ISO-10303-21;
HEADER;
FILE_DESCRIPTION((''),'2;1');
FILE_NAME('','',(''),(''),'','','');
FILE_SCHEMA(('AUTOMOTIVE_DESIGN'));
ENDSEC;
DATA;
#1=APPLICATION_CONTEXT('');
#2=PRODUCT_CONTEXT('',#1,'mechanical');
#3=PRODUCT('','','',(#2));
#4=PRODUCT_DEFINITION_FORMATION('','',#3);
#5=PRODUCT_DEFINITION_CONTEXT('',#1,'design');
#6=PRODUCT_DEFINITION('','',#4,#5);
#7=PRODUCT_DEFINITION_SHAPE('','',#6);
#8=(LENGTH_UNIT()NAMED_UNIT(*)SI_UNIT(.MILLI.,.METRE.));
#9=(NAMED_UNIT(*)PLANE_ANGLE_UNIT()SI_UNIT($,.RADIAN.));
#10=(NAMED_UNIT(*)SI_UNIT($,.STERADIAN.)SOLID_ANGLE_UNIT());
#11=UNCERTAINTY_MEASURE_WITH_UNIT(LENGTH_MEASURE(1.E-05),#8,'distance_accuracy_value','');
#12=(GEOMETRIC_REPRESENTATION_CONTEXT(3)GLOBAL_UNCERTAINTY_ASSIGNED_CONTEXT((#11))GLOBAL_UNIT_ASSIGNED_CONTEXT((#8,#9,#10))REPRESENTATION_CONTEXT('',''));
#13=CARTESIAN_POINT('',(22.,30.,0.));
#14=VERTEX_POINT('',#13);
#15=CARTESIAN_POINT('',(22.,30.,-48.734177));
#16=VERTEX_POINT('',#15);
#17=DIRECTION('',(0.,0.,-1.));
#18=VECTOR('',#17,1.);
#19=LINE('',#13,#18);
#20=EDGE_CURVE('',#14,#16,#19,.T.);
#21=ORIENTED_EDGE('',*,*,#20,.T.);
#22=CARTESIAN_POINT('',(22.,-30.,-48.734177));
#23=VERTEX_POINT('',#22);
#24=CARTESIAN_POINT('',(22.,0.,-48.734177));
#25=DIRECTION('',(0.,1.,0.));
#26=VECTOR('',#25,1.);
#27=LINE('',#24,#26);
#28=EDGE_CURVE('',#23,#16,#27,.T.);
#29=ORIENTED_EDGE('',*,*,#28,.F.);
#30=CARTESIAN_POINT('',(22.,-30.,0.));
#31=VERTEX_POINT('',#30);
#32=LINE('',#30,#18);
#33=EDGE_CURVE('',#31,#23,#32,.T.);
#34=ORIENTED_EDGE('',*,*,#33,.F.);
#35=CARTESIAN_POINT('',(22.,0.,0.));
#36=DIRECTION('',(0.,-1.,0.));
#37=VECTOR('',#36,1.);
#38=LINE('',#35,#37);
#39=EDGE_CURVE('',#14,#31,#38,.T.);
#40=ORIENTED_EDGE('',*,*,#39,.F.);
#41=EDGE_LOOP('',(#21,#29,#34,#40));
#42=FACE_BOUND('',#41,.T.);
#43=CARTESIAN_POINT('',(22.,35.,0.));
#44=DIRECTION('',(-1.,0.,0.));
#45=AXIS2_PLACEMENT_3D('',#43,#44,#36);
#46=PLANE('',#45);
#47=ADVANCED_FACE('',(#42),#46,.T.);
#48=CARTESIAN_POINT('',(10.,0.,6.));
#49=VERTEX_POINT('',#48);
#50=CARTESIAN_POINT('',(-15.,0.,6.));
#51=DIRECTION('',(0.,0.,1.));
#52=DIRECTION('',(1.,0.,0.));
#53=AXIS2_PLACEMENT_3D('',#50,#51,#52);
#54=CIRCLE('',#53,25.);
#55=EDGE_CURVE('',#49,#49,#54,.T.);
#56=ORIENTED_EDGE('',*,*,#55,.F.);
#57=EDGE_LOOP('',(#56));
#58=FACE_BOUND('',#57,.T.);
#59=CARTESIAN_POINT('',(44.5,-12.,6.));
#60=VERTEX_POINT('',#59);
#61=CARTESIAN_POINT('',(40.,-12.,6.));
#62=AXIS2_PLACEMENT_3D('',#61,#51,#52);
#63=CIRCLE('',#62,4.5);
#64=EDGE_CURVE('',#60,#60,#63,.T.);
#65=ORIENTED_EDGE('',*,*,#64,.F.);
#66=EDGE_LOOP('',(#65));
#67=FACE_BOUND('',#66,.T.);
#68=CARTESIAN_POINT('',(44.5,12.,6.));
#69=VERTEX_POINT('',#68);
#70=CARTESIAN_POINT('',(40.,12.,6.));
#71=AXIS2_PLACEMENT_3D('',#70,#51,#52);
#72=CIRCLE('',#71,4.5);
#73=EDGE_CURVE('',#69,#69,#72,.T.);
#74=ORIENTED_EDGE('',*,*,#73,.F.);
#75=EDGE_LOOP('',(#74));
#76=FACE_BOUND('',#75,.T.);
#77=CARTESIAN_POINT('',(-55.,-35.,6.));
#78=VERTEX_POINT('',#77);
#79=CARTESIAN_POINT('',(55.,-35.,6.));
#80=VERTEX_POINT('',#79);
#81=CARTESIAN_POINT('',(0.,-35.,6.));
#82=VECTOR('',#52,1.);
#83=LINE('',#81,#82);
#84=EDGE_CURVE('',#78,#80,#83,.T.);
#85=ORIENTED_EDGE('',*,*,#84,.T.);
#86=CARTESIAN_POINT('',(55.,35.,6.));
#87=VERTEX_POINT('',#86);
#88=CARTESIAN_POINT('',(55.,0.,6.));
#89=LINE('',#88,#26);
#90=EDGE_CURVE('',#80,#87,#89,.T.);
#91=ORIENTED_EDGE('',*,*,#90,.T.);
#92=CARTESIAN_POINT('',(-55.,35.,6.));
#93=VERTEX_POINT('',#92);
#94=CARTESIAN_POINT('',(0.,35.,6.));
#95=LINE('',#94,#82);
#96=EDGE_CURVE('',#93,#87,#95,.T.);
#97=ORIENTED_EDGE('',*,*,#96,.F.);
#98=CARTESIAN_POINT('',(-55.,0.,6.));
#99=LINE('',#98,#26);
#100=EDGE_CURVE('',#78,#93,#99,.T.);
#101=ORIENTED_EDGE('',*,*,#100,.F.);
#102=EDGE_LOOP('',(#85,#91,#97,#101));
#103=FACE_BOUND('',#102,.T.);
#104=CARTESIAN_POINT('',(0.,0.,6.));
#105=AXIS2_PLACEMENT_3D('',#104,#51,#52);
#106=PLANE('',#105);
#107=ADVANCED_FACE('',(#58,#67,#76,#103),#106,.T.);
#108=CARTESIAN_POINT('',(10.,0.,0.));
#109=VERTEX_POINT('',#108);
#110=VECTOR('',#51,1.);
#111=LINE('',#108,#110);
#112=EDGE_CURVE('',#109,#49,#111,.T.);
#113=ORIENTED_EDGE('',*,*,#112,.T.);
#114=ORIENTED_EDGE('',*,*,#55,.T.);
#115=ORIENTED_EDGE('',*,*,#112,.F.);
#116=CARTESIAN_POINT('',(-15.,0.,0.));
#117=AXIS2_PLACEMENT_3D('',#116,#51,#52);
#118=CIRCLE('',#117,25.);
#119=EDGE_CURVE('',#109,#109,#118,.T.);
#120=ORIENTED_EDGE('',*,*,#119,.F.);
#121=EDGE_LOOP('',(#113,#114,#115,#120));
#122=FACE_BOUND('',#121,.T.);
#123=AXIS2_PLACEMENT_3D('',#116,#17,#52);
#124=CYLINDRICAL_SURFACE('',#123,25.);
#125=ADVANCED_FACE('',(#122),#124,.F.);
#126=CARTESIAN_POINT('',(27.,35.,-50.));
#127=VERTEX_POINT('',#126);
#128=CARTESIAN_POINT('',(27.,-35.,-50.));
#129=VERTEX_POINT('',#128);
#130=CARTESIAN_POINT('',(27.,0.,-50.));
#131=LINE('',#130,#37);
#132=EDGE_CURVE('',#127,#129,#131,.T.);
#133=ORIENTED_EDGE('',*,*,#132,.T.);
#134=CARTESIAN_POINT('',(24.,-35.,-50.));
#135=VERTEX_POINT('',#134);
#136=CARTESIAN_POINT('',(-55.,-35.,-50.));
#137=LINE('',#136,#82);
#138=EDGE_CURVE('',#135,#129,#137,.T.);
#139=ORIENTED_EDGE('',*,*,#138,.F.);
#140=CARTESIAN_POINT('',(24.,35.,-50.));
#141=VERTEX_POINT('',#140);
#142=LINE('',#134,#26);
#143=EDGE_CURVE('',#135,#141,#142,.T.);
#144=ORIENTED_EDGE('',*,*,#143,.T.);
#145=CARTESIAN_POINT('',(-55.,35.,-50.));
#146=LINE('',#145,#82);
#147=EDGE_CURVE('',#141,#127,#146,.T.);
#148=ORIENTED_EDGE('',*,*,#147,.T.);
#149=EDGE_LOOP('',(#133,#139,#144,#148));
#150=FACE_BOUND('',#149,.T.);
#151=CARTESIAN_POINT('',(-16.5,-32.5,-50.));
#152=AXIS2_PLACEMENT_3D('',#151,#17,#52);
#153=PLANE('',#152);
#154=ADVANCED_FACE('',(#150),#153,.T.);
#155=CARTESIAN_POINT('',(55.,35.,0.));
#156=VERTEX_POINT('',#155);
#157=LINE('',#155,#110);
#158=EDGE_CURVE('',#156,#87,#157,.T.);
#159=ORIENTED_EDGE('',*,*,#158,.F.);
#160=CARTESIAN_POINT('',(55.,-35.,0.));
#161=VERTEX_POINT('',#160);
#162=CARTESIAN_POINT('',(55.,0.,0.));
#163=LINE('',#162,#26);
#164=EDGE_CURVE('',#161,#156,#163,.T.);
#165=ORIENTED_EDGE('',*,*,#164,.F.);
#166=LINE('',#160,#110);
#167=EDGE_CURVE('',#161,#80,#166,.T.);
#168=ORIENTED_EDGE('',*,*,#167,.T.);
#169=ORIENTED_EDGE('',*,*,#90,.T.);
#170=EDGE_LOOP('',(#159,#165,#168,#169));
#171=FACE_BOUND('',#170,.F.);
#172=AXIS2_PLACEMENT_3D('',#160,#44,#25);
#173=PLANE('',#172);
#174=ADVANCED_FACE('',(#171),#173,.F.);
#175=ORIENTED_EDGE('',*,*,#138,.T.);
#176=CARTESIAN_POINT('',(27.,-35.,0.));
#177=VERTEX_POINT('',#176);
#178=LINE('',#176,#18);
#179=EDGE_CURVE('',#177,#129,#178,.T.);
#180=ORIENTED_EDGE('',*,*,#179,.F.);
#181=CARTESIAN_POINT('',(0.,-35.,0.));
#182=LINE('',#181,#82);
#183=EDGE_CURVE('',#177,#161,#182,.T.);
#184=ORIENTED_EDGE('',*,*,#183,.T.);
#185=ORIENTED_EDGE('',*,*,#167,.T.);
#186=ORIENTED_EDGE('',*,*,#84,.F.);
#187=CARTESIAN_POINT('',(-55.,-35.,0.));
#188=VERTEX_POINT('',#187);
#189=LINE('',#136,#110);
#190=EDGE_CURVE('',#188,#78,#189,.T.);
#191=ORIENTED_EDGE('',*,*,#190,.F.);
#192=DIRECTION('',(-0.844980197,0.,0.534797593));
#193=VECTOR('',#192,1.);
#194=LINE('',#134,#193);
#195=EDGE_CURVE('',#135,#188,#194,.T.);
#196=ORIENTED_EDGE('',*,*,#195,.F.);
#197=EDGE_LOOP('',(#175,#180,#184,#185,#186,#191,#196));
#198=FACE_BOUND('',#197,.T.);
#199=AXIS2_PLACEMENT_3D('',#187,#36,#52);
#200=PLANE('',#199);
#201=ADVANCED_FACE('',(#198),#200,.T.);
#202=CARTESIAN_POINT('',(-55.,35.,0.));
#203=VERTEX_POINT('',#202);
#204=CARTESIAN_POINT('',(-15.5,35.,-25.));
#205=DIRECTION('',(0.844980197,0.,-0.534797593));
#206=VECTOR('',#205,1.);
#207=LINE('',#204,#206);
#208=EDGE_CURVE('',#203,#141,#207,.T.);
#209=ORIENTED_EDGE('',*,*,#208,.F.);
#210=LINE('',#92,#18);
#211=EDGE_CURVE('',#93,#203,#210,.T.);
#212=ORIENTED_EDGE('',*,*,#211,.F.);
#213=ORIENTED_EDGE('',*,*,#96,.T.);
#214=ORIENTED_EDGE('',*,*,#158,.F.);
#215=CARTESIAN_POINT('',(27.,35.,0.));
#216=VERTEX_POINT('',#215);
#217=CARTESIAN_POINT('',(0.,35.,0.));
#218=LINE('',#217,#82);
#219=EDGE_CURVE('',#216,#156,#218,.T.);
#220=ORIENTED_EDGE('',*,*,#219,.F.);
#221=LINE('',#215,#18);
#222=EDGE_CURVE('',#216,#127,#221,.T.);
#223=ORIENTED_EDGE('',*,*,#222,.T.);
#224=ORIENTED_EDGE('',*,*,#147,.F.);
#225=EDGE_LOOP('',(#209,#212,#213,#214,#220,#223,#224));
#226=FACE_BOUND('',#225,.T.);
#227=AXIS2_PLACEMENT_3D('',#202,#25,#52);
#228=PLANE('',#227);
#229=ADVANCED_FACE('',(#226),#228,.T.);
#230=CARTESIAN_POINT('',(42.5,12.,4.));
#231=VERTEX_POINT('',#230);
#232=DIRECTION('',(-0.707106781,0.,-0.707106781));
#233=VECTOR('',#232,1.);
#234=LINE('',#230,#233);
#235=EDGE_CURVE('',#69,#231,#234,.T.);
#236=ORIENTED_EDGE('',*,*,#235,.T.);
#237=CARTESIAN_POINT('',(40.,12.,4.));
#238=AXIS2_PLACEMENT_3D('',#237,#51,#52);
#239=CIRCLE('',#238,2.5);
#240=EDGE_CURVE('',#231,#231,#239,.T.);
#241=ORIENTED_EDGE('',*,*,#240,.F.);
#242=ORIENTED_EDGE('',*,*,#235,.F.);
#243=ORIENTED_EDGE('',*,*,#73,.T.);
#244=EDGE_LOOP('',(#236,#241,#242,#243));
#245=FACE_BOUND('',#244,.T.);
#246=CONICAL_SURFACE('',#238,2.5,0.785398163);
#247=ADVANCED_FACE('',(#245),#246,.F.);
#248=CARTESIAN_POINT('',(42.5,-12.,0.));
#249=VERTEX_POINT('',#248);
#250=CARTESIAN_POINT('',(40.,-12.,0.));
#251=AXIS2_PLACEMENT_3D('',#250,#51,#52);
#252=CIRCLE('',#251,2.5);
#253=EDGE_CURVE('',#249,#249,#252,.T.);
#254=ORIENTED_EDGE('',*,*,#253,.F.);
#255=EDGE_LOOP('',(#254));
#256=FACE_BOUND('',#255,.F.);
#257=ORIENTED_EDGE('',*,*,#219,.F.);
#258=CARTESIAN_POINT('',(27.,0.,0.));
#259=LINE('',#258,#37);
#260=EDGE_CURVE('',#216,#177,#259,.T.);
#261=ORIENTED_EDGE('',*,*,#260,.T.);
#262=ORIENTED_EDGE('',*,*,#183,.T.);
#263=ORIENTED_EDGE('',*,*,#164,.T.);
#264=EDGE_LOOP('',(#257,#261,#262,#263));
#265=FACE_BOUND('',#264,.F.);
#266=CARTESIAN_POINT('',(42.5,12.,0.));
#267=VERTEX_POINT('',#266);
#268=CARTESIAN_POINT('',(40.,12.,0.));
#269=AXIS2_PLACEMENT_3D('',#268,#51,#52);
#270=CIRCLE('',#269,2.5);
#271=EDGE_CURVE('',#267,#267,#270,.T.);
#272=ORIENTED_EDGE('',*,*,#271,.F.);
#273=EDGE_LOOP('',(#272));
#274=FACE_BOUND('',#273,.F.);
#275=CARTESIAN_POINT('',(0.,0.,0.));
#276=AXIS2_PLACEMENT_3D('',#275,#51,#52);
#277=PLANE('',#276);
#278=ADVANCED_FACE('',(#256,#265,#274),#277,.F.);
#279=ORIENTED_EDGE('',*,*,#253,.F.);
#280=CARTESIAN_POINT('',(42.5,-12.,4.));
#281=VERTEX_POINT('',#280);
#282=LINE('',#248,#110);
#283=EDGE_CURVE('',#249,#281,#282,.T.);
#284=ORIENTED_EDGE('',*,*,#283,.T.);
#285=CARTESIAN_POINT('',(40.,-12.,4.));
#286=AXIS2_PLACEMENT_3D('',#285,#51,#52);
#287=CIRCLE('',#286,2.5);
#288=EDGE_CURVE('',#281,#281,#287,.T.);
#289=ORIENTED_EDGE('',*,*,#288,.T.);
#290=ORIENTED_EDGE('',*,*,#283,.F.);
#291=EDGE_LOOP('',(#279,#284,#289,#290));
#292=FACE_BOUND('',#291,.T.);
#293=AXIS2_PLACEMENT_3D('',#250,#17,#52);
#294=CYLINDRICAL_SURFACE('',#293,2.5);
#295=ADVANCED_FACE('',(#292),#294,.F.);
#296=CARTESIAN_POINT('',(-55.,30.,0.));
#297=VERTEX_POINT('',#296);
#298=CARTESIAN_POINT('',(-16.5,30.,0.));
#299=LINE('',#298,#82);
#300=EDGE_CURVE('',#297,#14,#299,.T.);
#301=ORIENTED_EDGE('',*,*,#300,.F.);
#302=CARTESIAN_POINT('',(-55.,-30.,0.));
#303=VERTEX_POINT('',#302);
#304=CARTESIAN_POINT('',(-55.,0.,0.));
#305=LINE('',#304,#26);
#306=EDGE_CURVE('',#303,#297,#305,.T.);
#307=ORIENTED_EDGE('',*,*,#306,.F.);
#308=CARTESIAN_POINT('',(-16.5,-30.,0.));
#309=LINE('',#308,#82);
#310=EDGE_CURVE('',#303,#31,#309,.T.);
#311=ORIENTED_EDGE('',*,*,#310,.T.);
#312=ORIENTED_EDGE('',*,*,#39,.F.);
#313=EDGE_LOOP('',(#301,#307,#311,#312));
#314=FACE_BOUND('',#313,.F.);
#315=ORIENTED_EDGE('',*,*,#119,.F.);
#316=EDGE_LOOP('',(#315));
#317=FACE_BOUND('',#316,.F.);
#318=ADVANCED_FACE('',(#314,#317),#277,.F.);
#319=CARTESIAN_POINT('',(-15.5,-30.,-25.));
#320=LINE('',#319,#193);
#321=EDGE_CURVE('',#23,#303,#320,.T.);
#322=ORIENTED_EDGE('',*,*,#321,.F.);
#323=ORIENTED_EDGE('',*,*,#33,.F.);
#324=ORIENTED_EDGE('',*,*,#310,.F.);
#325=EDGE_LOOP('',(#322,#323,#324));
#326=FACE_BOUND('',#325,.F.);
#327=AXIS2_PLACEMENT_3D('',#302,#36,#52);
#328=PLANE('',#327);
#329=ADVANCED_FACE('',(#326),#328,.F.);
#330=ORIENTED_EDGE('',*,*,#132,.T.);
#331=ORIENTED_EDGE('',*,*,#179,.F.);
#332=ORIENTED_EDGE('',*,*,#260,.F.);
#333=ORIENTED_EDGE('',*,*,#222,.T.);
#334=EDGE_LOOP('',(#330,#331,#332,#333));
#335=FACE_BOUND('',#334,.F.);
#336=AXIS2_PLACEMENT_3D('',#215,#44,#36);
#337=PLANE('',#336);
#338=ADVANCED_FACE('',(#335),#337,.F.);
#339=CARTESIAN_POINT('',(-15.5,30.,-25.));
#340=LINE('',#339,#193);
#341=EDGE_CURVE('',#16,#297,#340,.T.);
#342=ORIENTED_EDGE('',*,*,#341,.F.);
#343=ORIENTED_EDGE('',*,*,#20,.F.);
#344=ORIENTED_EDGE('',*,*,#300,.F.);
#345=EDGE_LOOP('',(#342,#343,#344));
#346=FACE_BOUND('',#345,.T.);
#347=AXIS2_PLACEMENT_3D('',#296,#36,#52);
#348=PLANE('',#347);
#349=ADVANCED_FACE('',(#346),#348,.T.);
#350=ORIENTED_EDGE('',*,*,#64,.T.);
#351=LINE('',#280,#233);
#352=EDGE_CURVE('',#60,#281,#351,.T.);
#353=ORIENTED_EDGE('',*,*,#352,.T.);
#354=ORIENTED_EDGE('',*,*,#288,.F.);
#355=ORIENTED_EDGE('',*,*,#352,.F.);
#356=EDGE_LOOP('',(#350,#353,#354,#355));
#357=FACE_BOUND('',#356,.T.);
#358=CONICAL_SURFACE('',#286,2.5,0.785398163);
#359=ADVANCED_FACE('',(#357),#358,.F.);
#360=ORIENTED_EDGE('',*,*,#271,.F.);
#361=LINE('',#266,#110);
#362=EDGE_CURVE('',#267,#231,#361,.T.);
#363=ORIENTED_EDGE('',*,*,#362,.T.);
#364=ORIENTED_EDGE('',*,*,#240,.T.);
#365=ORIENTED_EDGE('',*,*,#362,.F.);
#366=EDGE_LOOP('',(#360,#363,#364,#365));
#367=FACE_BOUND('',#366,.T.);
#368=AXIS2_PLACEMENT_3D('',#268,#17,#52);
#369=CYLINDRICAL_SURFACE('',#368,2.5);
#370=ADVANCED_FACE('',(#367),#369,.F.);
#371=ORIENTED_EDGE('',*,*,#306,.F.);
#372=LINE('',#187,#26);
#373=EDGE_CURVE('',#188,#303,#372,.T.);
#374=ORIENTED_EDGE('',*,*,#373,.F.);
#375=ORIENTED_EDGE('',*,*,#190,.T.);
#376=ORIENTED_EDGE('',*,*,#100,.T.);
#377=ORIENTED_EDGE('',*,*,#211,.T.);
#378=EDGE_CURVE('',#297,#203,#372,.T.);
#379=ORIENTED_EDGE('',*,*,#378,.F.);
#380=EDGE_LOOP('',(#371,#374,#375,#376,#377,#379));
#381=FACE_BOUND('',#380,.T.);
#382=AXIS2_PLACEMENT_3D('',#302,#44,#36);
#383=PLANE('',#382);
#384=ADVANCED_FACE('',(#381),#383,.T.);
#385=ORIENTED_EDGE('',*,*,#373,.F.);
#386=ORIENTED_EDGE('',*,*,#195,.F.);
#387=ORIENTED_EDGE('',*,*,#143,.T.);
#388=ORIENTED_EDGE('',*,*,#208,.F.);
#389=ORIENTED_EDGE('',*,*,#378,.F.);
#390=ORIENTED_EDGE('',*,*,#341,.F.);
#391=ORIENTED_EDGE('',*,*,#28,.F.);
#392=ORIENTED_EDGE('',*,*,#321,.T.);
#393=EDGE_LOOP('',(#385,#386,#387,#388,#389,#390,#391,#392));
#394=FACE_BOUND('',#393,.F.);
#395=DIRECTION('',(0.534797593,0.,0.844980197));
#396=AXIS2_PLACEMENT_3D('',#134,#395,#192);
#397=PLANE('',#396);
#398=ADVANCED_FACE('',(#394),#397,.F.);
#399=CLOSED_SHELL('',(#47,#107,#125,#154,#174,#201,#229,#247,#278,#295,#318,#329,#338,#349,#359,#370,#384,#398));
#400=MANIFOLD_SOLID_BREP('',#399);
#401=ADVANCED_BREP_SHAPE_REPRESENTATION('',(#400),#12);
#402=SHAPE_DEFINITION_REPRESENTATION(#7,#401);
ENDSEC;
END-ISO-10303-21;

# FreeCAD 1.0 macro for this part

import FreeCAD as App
import Part
import Sketcher
from FreeCAD import Vector
Q = App.Units.Quantity


def edges_at(feature, points):
    """Names of the edges that pass closest to the given points."""
    edges = feature.Shape.Edges
    near = lambda p: min(range(len(edges)), key=lambda i: edges[i].distToShape(Part.Vertex(*p))[0])
    return sorted({f"Edge{near(p) + 1}" for p in points})

doc = App.newDocument("Part")
params = doc.addObject("Spreadsheet::Sheet", "Params")
for row, (alias, value) in enumerate([
    ("sketch1_diameter", "5 mm"),
    ("sketch1_diameter2", "50 mm"),
    ("sketch1_width", "110 mm"),
    ("sketch1_height", "70 mm"),
    ("pad1_length", "6 mm"),
    ("sketch2_width", "5 mm"),
    ("sketch2_height", "70 mm"),
    ("pad2_length", "50 mm"),
    ("sketch3_width", "77 mm"),
    ("sketch3_height", "5 mm"),
    ("pad3_length", "50 mm"),
    ("sketch4_width", "79 mm"),
    ("sketch4_height", "50 mm"),
    ("pocket1_length", "84.5 mm"),
    ("chamfer_size", "2 mm"),
    ("chamfer2_size", "2 mm"),
], start=1):
    params.set(f"A{row}", alias)
    params.set(f"B{row}", "=" + value)
    params.setAlias(f"B{row}", alias)

body = doc.addObject("PartDesign::Body", "Body")

# Sketch on XY plane
sketch1 = body.newObject("Sketcher::SketchObject", "Sketch")
sketch1.AttachmentSupport = (doc.getObject("XY_Plane"), [""])
sketch1.MapMode = "FlatFace"
sketch1.addGeometry([
    Part.LineSegment(Vector(-55, 35, 0), Vector(-55, -35, 0)),  # 0
    Part.LineSegment(Vector(-55, -35, 0), Vector(55, -35, 0)),  # 1
    Part.LineSegment(Vector(55, -35, 0), Vector(55, 35, 0)),  # 2
    Part.LineSegment(Vector(55, 35, 0), Vector(-55, 35, 0)),  # 3
    Part.Circle(Vector(40, -12, 0), Vector(0, 0, 1), 2.5),  # 4
    Part.Circle(Vector(-15, 0, 0), Vector(0, 0, 1), 25),  # 5
    Part.Circle(Vector(40, 12, 0), Vector(0, 0, 1), 2.5),  # 6
], False)
sketch1.addConstraint([
    Sketcher.Constraint("Coincident", 0, 2, 1, 1),
    Sketcher.Constraint("Coincident", 1, 2, 2, 1),
    Sketcher.Constraint("Coincident", 2, 2, 3, 1),
    Sketcher.Constraint("Coincident", 3, 2, 0, 1),
    Sketcher.Constraint("Vertical", 0),
    Sketcher.Constraint("Horizontal", 1),
    Sketcher.Constraint("Vertical", 2),
    Sketcher.Constraint("Horizontal", 3),
    Sketcher.Constraint("Equal", 4, 6),
    Sketcher.Constraint("Symmetric", 0, 2, 2, 2, -1, 1),
    Sketcher.Constraint("Symmetric", 4, 3, 6, 3, -1),
    Sketcher.Constraint("PointOnObject", 5, 3, -1),
    Sketcher.Constraint("Diameter", 4, Q("5 mm")),
    Sketcher.Constraint("Diameter", 5, Q("50 mm")),
    Sketcher.Constraint("DistanceX", 1, 1, 1, 2, Q("110 mm")),
    Sketcher.Constraint("DistanceY", 0, 2, 0, 1, Q("70 mm")),
    Sketcher.Constraint("DistanceX", -1, 1, 4, 3, Q("40 mm")),
    Sketcher.Constraint("DistanceY", 4, 3, -1, 1, Q("12 mm")),
    Sketcher.Constraint("DistanceX", 5, 3, -1, 1, Q("15 mm")),
])
sketch1.setExpression("Constraints[12]", "Params.sketch1_diameter")
sketch1.setExpression("Constraints[13]", "Params.sketch1_diameter2")
sketch1.setExpression("Constraints[14]", "Params.sketch1_width")
sketch1.setExpression("Constraints[15]", "Params.sketch1_height")
pad1 = body.newObject("PartDesign::Pad", "Pad")
pad1.Profile = sketch1
pad1.setExpression("Length", "Params.pad1_length")

# Sketch on XY plane
sketch2 = body.newObject("Sketcher::SketchObject", "Sketch001")
sketch2.AttachmentSupport = (doc.getObject("XY_Plane"), [""])
sketch2.MapMode = "FlatFace"
sketch2.addGeometry([
    Part.LineSegment(Vector(22, -35, 0), Vector(22, 35, 0)),
    Part.LineSegment(Vector(22, 35, 0), Vector(27, 35, 0)),
    Part.LineSegment(Vector(27, 35, 0), Vector(27, -35, 0)),
    Part.LineSegment(Vector(27, -35, 0), Vector(22, -35, 0)),
], False)
sketch2.addConstraint([
    Sketcher.Constraint("Coincident", 0, 2, 1, 1),
    Sketcher.Constraint("Coincident", 1, 2, 2, 1),
    Sketcher.Constraint("Coincident", 2, 2, 3, 1),
    Sketcher.Constraint("Coincident", 3, 2, 0, 1),
    Sketcher.Constraint("Vertical", 0),
    Sketcher.Constraint("Horizontal", 1),
    Sketcher.Constraint("Vertical", 2),
    Sketcher.Constraint("Horizontal", 3),
    Sketcher.Constraint("DistanceX", 1, 1, 1, 2, Q("5 mm")),
    Sketcher.Constraint("DistanceY", 0, 1, 0, 2, Q("70 mm")),
    Sketcher.Constraint("DistanceX", -1, 1, 0, 2, Q("22 mm")),
    Sketcher.Constraint("DistanceY", -1, 1, 0, 2, Q("35 mm")),
])
sketch2.setExpression("Constraints[8]", "Params.sketch2_width")
sketch2.setExpression("Constraints[9]", "Params.sketch2_height")
pad2 = body.newObject("PartDesign::Pad", "Pad001")
pad2.Profile = sketch2
pad2.setExpression("Length", "Params.pad2_length")
pad2.Reversed = True

# Sketch on XY plane
sketch3 = body.newObject("Sketcher::SketchObject", "Sketch002")
sketch3.AttachmentSupport = (doc.getObject("XY_Plane"), [""])
sketch3.MapMode = "FlatFace"
sketch3.addGeometry([
    Part.LineSegment(Vector(-55, -35, 0), Vector(-55, -30, 0)),  # 0
    Part.LineSegment(Vector(-55, -30, 0), Vector(22, -30, 0)),  # 1
    Part.LineSegment(Vector(22, -30, 0), Vector(22, -35, 0)),  # 2
    Part.LineSegment(Vector(22, -35, 0), Vector(-55, -35, 0)),  # 3
    Part.LineSegment(Vector(-55, 30, 0), Vector(-55, 35, 0)),  # 4
    Part.LineSegment(Vector(-55, 35, 0), Vector(22, 35, 0)),  # 5
    Part.LineSegment(Vector(22, 35, 0), Vector(22, 30, 0)),  # 6
    Part.LineSegment(Vector(22, 30, 0), Vector(-55, 30, 0)),  # 7
], False)
sketch3.addConstraint([
    Sketcher.Constraint("Coincident", 0, 2, 1, 1),
    Sketcher.Constraint("Coincident", 1, 2, 2, 1),
    Sketcher.Constraint("Coincident", 2, 2, 3, 1),
    Sketcher.Constraint("Coincident", 3, 2, 0, 1),
    Sketcher.Constraint("Coincident", 4, 2, 5, 1),
    Sketcher.Constraint("Coincident", 5, 2, 6, 1),
    Sketcher.Constraint("Coincident", 6, 2, 7, 1),
    Sketcher.Constraint("Coincident", 7, 2, 4, 1),
    Sketcher.Constraint("Vertical", 0),
    Sketcher.Constraint("Horizontal", 1),
    Sketcher.Constraint("Vertical", 2),
    Sketcher.Constraint("Horizontal", 3),
    Sketcher.Constraint("Vertical", 4),
    Sketcher.Constraint("Horizontal", 5),
    Sketcher.Constraint("Vertical", 6),
    Sketcher.Constraint("Horizontal", 7),
    Sketcher.Constraint("Symmetric", 3, 2, 4, 2, -1),
    Sketcher.Constraint("Symmetric", 1, 2, 6, 2, -1),
    Sketcher.Constraint("DistanceX", 1, 1, 1, 2, Q("77 mm")),
    Sketcher.Constraint("DistanceY", 0, 1, 0, 2, Q("5 mm")),
    Sketcher.Constraint("DistanceX", 0, 2, -1, 1, Q("55 mm")),
    Sketcher.Constraint("DistanceY", 0, 2, -1, 1, Q("30 mm")),
])
sketch3.setExpression("Constraints[18]", "Params.sketch3_width")
sketch3.setExpression("Constraints[19]", "Params.sketch3_height")
pad3 = body.newObject("PartDesign::Pad", "Pad002")
pad3.Profile = sketch3
pad3.setExpression("Length", "Params.pad3_length")
pad3.Reversed = True

# Sketch on XZ plane
sketch4 = body.newObject("Sketcher::SketchObject", "Sketch003")
sketch4.AttachmentSupport = (doc.getObject("XZ_Plane"), [""])
sketch4.MapMode = "FlatFace"
sketch4.AttachmentOffset = App.Placement(Vector(0, 0, 35), App.Rotation())
sketch4.addGeometry([
    Part.LineSegment(Vector(24, -50, 0), Vector(-55, 0, 0)),
    Part.LineSegment(Vector(-55, 0, 0), Vector(-55, -50, 0)),
    Part.LineSegment(Vector(-55, -50, 0), Vector(24, -50, 0)),
], False)
sketch4.addConstraint([
    Sketcher.Constraint("Coincident", 0, 2, 1, 1),
    Sketcher.Constraint("Coincident", 1, 2, 2, 1),
    Sketcher.Constraint("Coincident", 2, 2, 0, 1),
    Sketcher.Constraint("Vertical", 1),
    Sketcher.Constraint("Horizontal", 2),
    Sketcher.Constraint("PointOnObject", 0, 2, -1),
    Sketcher.Constraint("DistanceX", 2, 1, 2, 2, Q("79 mm")),
    Sketcher.Constraint("DistanceY", 1, 2, 1, 1, Q("50 mm")),
    Sketcher.Constraint("DistanceX", 0, 2, -1, 1, Q("55 mm")),
])
sketch4.setExpression("Constraints[6]", "Params.sketch4_width")
sketch4.setExpression("Constraints[7]", "Params.sketch4_height")
pocket1 = body.newObject("PartDesign::Pocket", "Pocket")
pocket1.Profile = sketch4
pocket1.setExpression("Length", "Params.pocket1_length")
doc.recompute()

chamfer = body.newObject("PartDesign::Chamfer", "Chamfer")
chamfer.Base = (pocket1, edges_at(pocket1, [(37.5, 12, 6)]))
chamfer.setExpression("Size", "Params.chamfer_size")
doc.recompute()

chamfer2 = body.newObject("PartDesign::Chamfer", "Chamfer001")
chamfer2.Base = (chamfer, edges_at(chamfer, [(37.5, -12, 6)]))
chamfer2.setExpression("Size", "Params.chamfer2_size")

doc.recompute()
